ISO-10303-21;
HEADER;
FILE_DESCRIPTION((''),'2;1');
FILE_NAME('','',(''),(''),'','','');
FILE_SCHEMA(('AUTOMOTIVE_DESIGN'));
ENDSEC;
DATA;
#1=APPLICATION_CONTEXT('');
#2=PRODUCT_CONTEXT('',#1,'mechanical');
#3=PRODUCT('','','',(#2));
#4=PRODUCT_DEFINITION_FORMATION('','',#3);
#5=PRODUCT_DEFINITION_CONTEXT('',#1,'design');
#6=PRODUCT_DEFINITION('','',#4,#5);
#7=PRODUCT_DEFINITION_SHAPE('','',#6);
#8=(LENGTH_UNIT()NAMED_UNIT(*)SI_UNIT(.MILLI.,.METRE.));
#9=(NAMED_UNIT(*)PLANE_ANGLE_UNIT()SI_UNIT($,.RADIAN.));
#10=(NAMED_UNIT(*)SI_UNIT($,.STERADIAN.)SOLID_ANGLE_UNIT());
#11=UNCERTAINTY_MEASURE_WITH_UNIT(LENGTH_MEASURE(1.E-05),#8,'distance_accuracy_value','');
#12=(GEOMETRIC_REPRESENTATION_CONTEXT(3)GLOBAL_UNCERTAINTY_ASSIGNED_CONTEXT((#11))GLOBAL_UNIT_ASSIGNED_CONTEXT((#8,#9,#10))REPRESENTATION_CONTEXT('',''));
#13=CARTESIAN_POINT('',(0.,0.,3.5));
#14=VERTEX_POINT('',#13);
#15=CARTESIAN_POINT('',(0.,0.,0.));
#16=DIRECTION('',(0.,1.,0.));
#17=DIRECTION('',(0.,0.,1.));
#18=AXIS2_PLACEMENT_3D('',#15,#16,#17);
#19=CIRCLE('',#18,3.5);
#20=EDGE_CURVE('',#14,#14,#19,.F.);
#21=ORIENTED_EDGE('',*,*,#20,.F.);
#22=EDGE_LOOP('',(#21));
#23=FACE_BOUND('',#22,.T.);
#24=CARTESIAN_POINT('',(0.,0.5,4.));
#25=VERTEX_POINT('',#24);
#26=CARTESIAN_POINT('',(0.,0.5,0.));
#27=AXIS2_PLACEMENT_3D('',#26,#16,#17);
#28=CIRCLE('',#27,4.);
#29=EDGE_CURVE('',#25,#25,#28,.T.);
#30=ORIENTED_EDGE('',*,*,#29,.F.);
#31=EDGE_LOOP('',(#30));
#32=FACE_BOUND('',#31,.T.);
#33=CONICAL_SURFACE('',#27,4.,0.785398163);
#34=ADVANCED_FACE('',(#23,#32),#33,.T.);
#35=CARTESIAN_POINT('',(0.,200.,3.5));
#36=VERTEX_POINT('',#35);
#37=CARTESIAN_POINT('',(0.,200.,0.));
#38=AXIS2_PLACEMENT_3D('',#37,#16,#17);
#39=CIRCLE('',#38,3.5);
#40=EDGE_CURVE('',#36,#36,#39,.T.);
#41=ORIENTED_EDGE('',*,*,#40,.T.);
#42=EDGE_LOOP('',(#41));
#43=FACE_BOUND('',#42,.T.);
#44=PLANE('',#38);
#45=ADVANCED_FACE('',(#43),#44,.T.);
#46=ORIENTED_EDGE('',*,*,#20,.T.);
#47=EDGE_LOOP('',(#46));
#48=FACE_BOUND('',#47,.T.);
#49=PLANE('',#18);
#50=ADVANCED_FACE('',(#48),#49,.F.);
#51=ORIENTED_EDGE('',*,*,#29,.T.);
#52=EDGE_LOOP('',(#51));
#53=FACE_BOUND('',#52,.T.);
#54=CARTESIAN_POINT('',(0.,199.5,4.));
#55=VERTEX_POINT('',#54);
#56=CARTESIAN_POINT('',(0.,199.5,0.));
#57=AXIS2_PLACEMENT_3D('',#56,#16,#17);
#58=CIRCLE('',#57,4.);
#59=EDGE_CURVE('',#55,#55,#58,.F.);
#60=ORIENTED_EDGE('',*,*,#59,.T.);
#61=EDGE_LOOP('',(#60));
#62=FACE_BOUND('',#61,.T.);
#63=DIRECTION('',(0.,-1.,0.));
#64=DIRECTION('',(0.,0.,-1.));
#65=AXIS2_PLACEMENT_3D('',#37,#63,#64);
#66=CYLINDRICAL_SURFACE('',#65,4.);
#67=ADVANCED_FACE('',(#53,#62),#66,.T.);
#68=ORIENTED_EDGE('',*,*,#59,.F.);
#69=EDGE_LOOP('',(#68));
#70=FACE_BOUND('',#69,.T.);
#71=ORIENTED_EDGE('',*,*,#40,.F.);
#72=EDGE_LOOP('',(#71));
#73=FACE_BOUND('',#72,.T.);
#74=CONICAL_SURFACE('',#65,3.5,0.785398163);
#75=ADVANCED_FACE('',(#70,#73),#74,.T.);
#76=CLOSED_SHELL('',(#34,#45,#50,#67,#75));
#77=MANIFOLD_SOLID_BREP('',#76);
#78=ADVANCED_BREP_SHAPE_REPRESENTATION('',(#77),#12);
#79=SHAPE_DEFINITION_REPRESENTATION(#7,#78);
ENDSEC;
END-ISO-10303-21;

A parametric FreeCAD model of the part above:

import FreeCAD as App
import Part
import Sketcher
from FreeCAD import Vector
Q = App.Units.Quantity


def edges_at(feature, points):
    """Names of the edges that pass closest to the given points."""
    edges = feature.Shape.Edges
    near = lambda p: min(range(len(edges)), key=lambda i: edges[i].distToShape(Part.Vertex(*p))[0])
    return sorted({f"Edge{near(p) + 1}" for p in points})

doc = App.newDocument("Part")
body = doc.addObject("PartDesign::Body", "Body")

# Sketch on XZ plane
sketch1 = body.newObject("Sketcher::SketchObject", "Sketch")
sketch1.AttachmentSupport = (doc.getObject("XZ_Plane"), [""])
sketch1.MapMode = "FlatFace"
sketch1.addGeometry(Part.Circle(Vector(0, 0, 0), Vector(0, 0, 1), 4), False)
sketch1.addConstraint(Sketcher.Constraint("Coincident", 0, 3, -1, 1))
sketch1.addConstraint(Sketcher.Constraint("Diameter", 0, Q("8 mm")))
pad1 = body.newObject("PartDesign::Pad", "Pad")
pad1.Profile = sketch1
pad1.Length = 200
pad1.Reversed = True
doc.recompute()

chamfer = body.newObject("PartDesign::Chamfer", "Chamfer")
chamfer.Base = (pad1, edges_at(pad1, [(0, 0, -4), (0, 200, -4)]))
chamfer.Size = 0.5

doc.recompute()
